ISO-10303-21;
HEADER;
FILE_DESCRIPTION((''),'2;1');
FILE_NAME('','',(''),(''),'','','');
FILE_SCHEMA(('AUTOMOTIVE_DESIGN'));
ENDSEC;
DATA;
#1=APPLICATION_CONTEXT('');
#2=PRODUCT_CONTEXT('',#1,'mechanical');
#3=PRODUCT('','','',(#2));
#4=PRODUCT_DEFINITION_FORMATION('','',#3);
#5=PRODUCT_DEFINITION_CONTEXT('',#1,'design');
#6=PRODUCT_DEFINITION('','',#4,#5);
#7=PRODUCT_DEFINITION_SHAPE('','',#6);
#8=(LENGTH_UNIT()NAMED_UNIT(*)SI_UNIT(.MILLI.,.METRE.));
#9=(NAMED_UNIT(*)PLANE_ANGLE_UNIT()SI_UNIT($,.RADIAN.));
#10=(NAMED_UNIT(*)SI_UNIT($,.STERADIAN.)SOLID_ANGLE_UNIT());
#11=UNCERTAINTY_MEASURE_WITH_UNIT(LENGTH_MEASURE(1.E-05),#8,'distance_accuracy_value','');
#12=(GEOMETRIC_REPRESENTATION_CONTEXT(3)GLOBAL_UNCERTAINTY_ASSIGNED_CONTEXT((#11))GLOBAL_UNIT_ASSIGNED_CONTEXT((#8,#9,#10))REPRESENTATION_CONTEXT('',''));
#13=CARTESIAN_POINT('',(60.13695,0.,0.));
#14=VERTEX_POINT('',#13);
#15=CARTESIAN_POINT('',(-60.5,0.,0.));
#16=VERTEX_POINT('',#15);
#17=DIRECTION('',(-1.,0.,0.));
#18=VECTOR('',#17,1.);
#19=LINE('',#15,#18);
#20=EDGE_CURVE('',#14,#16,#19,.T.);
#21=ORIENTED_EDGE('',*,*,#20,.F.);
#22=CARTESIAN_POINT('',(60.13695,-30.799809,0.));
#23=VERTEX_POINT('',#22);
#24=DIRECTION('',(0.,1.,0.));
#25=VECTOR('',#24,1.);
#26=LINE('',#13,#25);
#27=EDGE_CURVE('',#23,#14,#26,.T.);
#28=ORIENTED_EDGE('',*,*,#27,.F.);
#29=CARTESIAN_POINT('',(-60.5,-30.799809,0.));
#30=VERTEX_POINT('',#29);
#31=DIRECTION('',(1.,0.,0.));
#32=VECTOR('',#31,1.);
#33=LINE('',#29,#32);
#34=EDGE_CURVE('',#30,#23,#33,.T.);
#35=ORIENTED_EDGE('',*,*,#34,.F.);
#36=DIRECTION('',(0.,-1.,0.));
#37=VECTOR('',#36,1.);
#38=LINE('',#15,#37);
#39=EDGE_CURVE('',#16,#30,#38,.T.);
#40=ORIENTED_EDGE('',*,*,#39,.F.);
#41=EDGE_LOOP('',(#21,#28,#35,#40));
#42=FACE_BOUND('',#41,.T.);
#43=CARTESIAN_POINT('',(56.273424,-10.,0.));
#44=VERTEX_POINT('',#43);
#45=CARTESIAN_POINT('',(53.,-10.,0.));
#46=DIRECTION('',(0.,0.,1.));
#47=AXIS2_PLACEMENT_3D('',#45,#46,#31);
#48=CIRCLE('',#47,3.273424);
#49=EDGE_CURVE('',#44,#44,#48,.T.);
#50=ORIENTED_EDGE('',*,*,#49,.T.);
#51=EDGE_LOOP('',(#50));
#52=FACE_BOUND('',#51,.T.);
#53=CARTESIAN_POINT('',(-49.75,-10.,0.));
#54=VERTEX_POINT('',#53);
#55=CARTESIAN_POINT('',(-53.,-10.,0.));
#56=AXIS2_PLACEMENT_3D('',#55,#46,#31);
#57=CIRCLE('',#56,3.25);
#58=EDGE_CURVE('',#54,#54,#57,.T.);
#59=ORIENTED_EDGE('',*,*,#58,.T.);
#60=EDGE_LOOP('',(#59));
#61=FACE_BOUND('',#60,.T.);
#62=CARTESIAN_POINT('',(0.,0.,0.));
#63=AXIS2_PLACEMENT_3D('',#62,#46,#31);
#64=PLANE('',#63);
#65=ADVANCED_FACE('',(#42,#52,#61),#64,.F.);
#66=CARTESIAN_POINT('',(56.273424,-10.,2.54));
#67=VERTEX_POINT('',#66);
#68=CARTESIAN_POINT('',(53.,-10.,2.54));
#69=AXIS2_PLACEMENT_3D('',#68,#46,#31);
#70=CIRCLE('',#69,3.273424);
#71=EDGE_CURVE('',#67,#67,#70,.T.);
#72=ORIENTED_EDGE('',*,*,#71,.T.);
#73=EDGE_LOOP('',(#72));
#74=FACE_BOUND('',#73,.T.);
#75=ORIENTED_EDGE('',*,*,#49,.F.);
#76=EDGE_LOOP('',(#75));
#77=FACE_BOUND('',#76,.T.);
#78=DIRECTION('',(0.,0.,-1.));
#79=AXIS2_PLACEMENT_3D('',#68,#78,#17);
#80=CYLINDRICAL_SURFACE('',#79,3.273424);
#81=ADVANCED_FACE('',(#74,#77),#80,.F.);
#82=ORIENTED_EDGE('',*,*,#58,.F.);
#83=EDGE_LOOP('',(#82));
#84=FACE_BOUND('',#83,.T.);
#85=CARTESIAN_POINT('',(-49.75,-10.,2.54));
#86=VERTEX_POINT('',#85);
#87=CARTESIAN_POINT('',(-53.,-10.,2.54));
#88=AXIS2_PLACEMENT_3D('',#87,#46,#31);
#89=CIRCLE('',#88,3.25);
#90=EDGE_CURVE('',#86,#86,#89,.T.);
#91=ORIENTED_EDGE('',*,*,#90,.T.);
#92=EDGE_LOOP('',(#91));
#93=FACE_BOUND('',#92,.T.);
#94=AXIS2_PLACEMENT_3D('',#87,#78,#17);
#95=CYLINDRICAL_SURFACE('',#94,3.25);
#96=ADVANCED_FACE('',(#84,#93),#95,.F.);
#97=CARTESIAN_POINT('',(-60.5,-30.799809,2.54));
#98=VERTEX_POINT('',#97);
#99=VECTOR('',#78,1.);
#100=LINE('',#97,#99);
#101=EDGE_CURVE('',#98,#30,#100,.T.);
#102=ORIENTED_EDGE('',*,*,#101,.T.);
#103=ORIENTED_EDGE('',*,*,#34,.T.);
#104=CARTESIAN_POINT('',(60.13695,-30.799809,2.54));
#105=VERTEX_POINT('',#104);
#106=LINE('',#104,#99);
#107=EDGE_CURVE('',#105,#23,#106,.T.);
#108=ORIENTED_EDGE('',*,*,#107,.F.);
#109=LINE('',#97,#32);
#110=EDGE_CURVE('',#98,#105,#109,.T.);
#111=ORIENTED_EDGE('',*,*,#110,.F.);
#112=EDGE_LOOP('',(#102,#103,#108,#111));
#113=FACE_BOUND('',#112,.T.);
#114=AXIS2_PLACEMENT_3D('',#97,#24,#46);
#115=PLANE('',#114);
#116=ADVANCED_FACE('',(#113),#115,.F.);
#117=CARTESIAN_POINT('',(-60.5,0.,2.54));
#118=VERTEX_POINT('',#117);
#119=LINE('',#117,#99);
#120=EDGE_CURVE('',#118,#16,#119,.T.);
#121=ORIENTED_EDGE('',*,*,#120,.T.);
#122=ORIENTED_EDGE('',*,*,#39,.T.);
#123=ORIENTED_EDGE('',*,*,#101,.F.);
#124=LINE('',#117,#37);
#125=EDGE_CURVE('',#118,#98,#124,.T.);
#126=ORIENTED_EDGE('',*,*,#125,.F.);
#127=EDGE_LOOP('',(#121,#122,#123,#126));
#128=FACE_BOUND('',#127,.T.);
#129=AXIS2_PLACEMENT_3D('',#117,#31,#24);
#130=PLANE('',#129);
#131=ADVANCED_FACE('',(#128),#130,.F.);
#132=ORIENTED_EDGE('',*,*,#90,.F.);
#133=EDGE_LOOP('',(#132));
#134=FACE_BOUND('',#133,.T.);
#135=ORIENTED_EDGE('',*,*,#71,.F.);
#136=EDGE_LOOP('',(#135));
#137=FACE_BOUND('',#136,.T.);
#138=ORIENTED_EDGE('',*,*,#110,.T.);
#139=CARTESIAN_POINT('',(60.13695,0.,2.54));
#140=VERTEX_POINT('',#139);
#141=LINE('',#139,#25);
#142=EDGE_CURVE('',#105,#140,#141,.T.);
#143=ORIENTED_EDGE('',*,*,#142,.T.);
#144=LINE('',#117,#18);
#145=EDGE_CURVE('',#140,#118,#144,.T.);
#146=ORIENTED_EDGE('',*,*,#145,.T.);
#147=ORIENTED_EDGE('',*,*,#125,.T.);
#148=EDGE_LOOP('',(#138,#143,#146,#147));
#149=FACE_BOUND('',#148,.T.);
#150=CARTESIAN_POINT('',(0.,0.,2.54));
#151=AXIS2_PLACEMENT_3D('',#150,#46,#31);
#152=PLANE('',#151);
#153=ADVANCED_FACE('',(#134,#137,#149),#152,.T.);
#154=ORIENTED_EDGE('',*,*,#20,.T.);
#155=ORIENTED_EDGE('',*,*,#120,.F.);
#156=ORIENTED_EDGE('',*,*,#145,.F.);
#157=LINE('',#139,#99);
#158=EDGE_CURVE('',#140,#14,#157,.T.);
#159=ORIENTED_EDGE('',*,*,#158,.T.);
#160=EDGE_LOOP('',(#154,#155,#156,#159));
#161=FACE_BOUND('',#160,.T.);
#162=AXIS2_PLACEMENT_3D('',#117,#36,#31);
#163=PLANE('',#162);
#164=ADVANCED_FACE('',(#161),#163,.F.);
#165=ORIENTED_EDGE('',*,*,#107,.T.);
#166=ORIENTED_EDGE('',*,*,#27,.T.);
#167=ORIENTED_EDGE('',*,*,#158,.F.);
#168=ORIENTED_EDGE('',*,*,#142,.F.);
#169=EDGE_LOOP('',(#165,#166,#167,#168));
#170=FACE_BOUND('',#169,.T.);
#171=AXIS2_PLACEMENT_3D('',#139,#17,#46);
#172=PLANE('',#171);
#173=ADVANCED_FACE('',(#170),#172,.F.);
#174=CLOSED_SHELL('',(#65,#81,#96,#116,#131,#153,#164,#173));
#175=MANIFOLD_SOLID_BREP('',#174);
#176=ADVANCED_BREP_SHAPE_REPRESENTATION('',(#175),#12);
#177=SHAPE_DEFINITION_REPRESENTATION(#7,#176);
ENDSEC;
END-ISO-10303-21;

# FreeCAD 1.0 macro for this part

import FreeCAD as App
import Part
import Sketcher


def add_polygon(sketch, points):
    """Adds a closed chain of lines whose ends are joined by coincident constraints."""
    first, n = sketch.GeometryCount, len(points)
    for a, b in zip(points, points[1:] + points[:1]):
        sketch.addGeometry(Part.LineSegment(App.Vector(*a, 0), App.Vector(*b, 0)), False)
    for i in range(n):
        sketch.addConstraint(Sketcher.Constraint("Coincident", first + i, 2, first + (i + 1) % n, 1))

doc = App.newDocument("Part")
params = doc.addObject("Spreadsheet::Sheet", "Params")
for row, (alias, value) in enumerate([
    ("sketch1_diameter", "6.5 mm"),
    ("pad1_length", "2.54 mm"),
], start=1):
    params.set(f"A{row}", alias)
    params.set(f"B{row}", "=" + value)
    params.setAlias(f"B{row}", alias)

body = doc.addObject("PartDesign::Body", "Body")

# Sketch on XY plane
sketch1 = doc.addObject("Sketcher::SketchObject", "Sketch")
body.addObject(sketch1)
sketch1.AttachmentSupport = (doc.XY_Plane, [""])
sketch1.MapMode = "FlatFace"
add_polygon(sketch1, [(-60.5, 0), (-60.5, -30.799809), (60.13695, -30.799809), (60.13695, 0)])  # lines 0-3
sketch1.addGeometry(Part.Circle(App.Vector(-53, -10, 0), App.Vector(0, 0, 1), 3.25), False)  # 4
sketch1.addGeometry(Part.Circle(App.Vector(53, -10, 0), App.Vector(0, 0, 1), 3.273424), False)  # 5
sketch1.addConstraint([
    Sketcher.Constraint("Vertical", 0),
    Sketcher.Constraint("Horizontal", 1),
    Sketcher.Constraint("Vertical", 2),
    Sketcher.Constraint("Horizontal", 3),
    Sketcher.Constraint("Symmetric", 4, 3, 5, 3, -2),
    Sketcher.Constraint("PointOnObject", 2, 2, -1),
    Sketcher.Constraint("Diameter", 4, 6.5),
    Sketcher.Constraint("DistanceX", 4, 3, -1, 1, 53.0),
    Sketcher.Constraint("DistanceY", 4, 3, -1, 1, 10.0),
    Sketcher.Constraint("DistanceX", 0, 2, -1, 1, 60.5),
    Sketcher.Constraint("Diameter", 5, 6.546848),
    Sketcher.Constraint("DistanceX", 1, 1, 1, 2, 120.63695),
    Sketcher.Constraint("DistanceY", 0, 2, 0, 1, 30.799809),
])
sketch1.setExpression("Constraints[10]", "Params.sketch1_diameter")
pad1 = doc.addObject("PartDesign::Pad", "Pad")
body.addObject(pad1)
pad1.Profile = sketch1
pad1.setExpression("Length", "Params.pad1_length")

doc.recompute()
